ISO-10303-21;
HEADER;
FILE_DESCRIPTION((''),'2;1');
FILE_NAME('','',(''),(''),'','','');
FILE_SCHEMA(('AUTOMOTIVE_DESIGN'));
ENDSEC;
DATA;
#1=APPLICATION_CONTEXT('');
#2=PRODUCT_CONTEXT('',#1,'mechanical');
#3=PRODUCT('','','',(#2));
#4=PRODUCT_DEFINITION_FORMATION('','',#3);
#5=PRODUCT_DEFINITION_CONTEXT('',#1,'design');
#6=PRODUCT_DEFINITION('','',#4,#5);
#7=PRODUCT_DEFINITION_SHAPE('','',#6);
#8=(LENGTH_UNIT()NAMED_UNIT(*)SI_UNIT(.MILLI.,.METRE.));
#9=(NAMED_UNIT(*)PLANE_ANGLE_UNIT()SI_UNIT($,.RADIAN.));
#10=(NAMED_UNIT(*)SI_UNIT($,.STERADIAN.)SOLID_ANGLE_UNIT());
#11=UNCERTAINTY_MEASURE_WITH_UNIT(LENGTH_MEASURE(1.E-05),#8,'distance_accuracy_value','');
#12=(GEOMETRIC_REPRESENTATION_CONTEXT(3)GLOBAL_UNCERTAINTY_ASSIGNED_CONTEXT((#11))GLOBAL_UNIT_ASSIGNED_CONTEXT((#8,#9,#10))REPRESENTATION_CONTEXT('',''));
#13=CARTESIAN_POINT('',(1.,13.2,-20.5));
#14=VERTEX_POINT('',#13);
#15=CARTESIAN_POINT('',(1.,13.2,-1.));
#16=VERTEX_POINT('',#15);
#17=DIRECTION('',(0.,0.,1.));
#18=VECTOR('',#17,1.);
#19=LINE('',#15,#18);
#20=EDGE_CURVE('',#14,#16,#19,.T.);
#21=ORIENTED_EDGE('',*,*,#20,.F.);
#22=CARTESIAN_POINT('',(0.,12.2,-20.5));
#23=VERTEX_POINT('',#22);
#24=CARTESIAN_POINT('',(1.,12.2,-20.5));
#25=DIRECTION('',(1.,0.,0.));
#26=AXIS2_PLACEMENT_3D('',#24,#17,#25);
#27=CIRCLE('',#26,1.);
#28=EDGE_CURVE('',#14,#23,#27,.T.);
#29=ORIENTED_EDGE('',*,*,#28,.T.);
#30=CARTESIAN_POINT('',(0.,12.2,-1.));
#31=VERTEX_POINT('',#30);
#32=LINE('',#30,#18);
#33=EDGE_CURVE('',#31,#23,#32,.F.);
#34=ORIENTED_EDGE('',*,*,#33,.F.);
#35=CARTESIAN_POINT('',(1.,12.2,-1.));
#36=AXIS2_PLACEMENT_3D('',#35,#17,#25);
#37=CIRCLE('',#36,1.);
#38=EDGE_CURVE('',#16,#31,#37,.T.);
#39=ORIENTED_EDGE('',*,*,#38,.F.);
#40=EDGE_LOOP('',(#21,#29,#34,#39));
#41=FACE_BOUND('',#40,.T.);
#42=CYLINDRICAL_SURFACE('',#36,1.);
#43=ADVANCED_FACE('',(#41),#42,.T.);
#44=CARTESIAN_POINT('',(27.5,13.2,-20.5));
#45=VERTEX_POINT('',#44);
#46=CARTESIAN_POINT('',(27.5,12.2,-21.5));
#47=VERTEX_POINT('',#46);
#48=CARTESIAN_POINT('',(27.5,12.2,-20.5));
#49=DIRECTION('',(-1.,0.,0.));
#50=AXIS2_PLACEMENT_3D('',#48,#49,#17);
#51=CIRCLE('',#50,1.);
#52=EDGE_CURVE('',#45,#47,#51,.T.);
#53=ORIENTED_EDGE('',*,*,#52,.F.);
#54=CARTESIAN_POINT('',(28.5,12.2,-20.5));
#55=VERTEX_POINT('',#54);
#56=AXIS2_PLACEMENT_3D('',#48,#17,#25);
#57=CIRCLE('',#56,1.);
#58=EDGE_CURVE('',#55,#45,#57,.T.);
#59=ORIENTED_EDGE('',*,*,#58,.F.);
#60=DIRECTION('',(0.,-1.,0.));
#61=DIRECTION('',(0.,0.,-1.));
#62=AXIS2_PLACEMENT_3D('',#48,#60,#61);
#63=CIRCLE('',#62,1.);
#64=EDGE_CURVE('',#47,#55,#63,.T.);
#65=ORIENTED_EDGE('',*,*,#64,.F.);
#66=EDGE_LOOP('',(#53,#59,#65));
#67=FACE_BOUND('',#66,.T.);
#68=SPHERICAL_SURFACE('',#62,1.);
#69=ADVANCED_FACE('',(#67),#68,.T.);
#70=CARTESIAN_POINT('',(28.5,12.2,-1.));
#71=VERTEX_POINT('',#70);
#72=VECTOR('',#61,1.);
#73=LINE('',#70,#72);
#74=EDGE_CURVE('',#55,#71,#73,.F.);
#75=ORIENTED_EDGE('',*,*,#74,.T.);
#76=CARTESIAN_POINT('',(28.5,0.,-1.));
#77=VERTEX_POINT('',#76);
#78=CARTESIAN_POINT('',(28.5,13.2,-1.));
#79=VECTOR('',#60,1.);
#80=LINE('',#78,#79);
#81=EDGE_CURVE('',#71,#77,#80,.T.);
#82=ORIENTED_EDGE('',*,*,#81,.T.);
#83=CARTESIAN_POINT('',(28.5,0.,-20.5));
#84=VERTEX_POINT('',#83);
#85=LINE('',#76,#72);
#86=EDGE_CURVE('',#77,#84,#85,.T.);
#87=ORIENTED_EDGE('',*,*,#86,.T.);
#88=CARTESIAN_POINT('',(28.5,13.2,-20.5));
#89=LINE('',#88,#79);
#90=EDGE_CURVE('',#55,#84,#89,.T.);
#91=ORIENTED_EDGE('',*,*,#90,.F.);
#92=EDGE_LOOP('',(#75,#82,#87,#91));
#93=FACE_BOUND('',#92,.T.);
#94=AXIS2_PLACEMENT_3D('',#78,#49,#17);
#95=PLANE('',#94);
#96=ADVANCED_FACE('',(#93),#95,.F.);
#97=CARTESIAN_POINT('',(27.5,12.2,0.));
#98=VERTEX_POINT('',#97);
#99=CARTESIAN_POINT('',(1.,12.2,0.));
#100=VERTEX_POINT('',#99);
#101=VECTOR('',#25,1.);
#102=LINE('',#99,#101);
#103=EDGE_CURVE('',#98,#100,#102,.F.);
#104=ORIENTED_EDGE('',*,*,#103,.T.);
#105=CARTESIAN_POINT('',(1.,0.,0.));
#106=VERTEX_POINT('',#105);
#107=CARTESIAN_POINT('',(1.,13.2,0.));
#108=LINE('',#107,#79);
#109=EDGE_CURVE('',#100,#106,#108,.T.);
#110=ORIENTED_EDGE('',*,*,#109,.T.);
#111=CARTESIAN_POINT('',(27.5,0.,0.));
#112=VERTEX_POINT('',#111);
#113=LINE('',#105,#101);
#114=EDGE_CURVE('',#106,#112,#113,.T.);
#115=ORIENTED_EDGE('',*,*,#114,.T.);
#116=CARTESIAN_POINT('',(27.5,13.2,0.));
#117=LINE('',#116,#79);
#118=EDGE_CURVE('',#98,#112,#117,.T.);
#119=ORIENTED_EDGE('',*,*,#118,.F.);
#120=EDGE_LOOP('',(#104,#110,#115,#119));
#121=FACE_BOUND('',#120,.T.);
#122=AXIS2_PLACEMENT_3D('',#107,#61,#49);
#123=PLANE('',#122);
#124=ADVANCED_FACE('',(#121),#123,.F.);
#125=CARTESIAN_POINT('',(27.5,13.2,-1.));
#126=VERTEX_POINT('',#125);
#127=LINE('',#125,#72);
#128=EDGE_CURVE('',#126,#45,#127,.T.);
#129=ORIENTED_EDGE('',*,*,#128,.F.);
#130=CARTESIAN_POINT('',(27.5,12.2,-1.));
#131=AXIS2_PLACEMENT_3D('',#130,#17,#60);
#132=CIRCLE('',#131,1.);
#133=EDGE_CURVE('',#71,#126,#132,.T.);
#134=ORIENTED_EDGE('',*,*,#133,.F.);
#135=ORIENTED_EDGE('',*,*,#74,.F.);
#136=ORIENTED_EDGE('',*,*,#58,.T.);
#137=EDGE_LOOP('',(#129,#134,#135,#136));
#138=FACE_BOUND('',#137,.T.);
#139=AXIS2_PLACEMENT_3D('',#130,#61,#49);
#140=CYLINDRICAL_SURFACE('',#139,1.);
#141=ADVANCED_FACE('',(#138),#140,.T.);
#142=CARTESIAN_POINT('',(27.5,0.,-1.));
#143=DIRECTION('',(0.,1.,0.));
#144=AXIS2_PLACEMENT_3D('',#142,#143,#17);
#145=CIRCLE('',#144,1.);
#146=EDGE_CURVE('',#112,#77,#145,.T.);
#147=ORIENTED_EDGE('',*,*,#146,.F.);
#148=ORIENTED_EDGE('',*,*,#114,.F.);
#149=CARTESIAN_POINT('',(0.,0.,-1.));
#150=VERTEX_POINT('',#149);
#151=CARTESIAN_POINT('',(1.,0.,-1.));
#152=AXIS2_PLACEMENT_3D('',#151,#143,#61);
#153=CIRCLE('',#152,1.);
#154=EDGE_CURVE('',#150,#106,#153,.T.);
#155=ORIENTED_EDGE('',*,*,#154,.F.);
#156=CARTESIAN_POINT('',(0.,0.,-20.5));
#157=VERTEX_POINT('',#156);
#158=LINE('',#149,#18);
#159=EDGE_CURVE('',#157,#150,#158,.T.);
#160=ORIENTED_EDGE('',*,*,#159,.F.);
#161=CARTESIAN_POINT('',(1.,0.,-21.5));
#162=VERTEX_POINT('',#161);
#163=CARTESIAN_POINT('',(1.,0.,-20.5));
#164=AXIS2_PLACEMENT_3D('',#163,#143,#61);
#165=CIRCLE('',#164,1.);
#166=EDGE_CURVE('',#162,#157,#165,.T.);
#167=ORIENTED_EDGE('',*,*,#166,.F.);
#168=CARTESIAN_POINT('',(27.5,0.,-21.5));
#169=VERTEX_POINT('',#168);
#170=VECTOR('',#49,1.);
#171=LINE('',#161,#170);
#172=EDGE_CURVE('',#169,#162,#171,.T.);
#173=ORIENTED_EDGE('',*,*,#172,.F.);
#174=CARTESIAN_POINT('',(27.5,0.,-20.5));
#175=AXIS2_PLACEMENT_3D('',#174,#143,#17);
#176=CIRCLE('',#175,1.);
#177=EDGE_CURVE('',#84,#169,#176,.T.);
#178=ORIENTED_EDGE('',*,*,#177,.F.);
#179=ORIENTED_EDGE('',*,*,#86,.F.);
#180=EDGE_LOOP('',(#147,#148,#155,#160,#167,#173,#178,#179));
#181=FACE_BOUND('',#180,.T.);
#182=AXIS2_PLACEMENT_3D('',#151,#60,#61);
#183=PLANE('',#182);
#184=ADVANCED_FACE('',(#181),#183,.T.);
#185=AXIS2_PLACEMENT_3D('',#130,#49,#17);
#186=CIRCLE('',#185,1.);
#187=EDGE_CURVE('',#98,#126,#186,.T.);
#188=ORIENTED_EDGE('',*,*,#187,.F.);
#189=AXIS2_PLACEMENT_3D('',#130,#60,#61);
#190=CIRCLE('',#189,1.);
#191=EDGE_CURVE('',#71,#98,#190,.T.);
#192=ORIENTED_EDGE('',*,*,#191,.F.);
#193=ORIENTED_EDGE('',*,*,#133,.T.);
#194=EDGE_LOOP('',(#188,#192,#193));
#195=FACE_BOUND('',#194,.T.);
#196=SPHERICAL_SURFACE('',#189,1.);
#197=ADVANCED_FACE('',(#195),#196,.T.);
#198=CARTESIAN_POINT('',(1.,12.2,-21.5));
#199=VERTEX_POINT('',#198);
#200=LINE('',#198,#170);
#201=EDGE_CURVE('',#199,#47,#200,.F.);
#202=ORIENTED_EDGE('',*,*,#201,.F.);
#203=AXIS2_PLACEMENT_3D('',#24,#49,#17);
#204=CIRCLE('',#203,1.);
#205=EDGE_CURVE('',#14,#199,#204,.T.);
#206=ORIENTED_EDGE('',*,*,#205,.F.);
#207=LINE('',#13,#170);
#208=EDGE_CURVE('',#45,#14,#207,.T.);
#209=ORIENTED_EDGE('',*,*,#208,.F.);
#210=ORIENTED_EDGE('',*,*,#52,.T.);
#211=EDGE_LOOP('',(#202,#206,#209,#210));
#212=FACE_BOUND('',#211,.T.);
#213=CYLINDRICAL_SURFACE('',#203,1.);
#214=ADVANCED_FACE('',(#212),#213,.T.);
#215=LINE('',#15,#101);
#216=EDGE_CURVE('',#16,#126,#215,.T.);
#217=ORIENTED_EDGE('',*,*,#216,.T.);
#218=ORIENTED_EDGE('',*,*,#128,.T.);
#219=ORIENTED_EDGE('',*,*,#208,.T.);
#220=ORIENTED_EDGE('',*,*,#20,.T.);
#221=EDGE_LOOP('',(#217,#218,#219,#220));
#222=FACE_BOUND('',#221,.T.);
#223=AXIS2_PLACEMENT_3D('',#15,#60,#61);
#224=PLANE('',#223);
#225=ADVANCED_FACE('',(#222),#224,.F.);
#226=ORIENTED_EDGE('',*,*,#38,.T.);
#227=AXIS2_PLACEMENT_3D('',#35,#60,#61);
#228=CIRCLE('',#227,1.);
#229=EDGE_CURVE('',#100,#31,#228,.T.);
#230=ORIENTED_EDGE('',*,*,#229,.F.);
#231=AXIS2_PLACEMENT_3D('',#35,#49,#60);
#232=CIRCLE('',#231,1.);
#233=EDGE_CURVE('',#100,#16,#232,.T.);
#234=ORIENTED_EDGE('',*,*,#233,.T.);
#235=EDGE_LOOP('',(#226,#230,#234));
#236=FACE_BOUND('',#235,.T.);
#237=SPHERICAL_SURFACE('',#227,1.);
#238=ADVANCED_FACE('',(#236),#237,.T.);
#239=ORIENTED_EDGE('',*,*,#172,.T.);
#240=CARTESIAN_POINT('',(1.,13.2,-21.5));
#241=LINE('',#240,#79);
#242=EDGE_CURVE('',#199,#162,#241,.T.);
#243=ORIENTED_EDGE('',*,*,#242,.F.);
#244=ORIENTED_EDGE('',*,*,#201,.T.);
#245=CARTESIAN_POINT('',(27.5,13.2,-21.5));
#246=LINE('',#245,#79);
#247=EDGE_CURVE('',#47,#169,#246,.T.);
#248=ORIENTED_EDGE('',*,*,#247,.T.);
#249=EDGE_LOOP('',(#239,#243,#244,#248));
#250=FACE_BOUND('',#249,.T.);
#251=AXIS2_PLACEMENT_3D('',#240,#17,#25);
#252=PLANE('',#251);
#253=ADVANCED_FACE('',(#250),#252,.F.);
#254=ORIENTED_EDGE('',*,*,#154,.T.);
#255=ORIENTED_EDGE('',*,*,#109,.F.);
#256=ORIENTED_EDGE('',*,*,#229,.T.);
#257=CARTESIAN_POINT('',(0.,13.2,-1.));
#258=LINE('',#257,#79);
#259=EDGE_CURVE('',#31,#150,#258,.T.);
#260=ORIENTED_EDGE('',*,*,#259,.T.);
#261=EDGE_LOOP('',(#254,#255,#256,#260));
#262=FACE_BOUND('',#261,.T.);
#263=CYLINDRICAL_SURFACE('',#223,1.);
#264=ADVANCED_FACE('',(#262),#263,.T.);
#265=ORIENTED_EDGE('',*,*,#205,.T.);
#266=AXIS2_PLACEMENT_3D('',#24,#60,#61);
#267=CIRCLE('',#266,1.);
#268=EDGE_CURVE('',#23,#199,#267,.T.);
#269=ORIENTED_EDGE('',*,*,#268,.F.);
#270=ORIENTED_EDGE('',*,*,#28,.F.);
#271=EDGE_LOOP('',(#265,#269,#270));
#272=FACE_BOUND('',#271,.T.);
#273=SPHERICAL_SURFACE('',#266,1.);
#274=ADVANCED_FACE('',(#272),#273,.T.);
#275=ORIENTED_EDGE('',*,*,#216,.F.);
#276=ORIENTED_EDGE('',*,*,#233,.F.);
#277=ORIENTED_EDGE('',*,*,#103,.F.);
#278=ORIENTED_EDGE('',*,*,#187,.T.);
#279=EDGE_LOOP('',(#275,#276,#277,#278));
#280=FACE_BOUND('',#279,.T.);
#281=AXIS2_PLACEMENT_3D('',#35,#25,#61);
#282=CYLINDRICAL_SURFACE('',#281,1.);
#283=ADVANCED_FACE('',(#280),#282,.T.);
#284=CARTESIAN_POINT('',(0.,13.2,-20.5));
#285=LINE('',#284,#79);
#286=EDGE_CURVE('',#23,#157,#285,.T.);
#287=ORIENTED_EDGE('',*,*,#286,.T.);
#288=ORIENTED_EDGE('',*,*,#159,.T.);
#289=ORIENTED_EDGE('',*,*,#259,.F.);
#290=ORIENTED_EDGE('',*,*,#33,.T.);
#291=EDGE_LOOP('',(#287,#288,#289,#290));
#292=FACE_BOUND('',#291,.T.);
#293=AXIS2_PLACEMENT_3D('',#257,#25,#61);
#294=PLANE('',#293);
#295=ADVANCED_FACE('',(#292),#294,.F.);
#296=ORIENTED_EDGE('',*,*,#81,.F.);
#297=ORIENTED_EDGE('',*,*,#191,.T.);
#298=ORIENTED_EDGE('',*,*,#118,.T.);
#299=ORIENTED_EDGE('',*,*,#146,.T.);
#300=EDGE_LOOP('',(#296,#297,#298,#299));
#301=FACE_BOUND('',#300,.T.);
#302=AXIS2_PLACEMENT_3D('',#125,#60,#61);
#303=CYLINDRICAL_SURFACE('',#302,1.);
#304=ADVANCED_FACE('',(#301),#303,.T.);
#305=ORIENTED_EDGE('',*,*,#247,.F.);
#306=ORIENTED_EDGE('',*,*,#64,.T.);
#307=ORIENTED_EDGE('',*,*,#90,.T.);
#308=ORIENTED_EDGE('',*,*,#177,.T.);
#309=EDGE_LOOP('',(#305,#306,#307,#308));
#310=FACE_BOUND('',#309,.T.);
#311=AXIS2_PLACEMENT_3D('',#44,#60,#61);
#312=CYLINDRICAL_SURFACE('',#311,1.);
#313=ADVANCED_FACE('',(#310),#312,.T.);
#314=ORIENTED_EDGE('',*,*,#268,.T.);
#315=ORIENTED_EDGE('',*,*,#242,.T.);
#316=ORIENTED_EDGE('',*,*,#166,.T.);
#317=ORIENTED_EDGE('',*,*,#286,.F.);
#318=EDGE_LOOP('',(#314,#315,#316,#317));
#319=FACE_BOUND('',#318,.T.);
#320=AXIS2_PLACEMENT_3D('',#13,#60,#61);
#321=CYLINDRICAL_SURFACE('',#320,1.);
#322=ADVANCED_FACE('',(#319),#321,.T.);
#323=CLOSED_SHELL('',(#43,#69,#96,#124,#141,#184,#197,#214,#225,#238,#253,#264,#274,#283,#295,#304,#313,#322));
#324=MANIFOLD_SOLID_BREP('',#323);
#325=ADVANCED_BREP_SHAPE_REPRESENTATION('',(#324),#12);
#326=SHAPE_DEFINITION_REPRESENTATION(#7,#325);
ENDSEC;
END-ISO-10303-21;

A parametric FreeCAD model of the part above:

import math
import FreeCAD as App
import Part
import Sketcher


def edges_at(feature, points):
    """Names of the edges that pass closest to the given points."""
    edges = feature.Shape.Edges
    near = lambda p: min(range(len(edges)), key=lambda i: edges[i].distToShape(Part.Vertex(*p))[0])
    return sorted({f"Edge{near(p) + 1}" for p in points})

doc = App.newDocument("Part")
body = doc.addObject("PartDesign::Body", "Body")

# Sketch on XZ plane
sketch1 = body.newObject("Sketcher::SketchObject", "Sketch")
sketch1.AttachmentSupport = (doc.getObject("XZ_Plane"), [""])
sketch1.MapMode = "FlatFace"
sketch1.addGeometry(Part.LineSegment(App.Vector(1, 0, 0), App.Vector(27.5, 0, 0)), False)
sketch1.addGeometry(Part.ArcOfCircle(Part.Circle(App.Vector(27.5, -1, 0), App.Vector(0, 0, 1), 1), math.radians(0), math.radians(90)), False)
sketch1.addGeometry(Part.LineSegment(App.Vector(28.5, -1, 0), App.Vector(28.5, -20.5, 0)), False)
sketch1.addGeometry(Part.ArcOfCircle(Part.Circle(App.Vector(27.5, -20.5, 0), App.Vector(0, 0, 1), 1), math.radians(-90), math.radians(0)), False)
sketch1.addGeometry(Part.LineSegment(App.Vector(27.5, -21.5, 0), App.Vector(1, -21.5, 0)), False)
sketch1.addGeometry(Part.ArcOfCircle(Part.Circle(App.Vector(1, -20.5, 0), App.Vector(0, 0, 1), 1), math.radians(-180), math.radians(-90)), False)
sketch1.addGeometry(Part.LineSegment(App.Vector(0, -20.5, 0), App.Vector(0, -1, 0)), False)
sketch1.addGeometry(Part.ArcOfCircle(Part.Circle(App.Vector(1, -1, 0), App.Vector(0, 0, 1), 1), math.radians(90), math.radians(180)), False)
sketch1.addConstraint(Sketcher.Constraint("Tangent", 0, 2, 1, 2))
sketch1.addConstraint(Sketcher.Constraint("Tangent", 1, 1, 2, 1))
sketch1.addConstraint(Sketcher.Constraint("Tangent", 2, 2, 3, 2))
sketch1.addConstraint(Sketcher.Constraint("Tangent", 3, 1, 4, 1))
sketch1.addConstraint(Sketcher.Constraint("Tangent", 4, 2, 5, 2))
sketch1.addConstraint(Sketcher.Constraint("Tangent", 5, 1, 6, 1))
sketch1.addConstraint(Sketcher.Constraint("Tangent", 6, 2, 7, 2))
sketch1.addConstraint(Sketcher.Constraint("Tangent", 7, 1, 0, 1))
sketch1.addConstraint(Sketcher.Constraint("Horizontal", 0))
sketch1.addConstraint(Sketcher.Constraint("Vertical", 2))
sketch1.addConstraint(Sketcher.Constraint("Horizontal", 4))
sketch1.addConstraint(Sketcher.Constraint("Vertical", 6))
sketch1.addConstraint(Sketcher.Constraint("Equal", 1, 3))
sketch1.addConstraint(Sketcher.Constraint("Equal", 3, 5))
sketch1.addConstraint(Sketcher.Constraint("Equal", 5, 7))
sketch1.addConstraint(Sketcher.Constraint("PointOnObject", 0, 2, -1))
sketch1.addConstraint(Sketcher.Constraint("PointOnObject", 5, 1, -2))
sketch1.addConstraint(Sketcher.Constraint("Radius", 1, 1.0))
sketch1.addConstraint(Sketcher.Constraint("DistanceX", 0, 1, 0, 2, 26.5))
sketch1.addConstraint(Sketcher.Constraint("DistanceY", 2, 2, 2, 1, 19.5))
pad1 = body.newObject("PartDesign::Pad", "Pad")
pad1.Profile = sketch1
pad1.Length = 13.2
pad1.Reversed = True
doc.recompute()

fillet = body.newObject("PartDesign::Fillet", "Fillet")
fillet.Base = (pad1, edges_at(pad1, [
    (28.207, 13.2, -0.293),
    (28.5, 13.2, -10.75),
    (28.207, 13.2, -21.207),
    (14.25, 13.2, -21.5),
    (0.293, 13.2, -21.207),
    (0, 13.2, -10.75),
    (0.293, 13.2, -0.293),
    (14.25, 13.2, 0),
]))
fillet.Radius = 1

doc.recompute()
